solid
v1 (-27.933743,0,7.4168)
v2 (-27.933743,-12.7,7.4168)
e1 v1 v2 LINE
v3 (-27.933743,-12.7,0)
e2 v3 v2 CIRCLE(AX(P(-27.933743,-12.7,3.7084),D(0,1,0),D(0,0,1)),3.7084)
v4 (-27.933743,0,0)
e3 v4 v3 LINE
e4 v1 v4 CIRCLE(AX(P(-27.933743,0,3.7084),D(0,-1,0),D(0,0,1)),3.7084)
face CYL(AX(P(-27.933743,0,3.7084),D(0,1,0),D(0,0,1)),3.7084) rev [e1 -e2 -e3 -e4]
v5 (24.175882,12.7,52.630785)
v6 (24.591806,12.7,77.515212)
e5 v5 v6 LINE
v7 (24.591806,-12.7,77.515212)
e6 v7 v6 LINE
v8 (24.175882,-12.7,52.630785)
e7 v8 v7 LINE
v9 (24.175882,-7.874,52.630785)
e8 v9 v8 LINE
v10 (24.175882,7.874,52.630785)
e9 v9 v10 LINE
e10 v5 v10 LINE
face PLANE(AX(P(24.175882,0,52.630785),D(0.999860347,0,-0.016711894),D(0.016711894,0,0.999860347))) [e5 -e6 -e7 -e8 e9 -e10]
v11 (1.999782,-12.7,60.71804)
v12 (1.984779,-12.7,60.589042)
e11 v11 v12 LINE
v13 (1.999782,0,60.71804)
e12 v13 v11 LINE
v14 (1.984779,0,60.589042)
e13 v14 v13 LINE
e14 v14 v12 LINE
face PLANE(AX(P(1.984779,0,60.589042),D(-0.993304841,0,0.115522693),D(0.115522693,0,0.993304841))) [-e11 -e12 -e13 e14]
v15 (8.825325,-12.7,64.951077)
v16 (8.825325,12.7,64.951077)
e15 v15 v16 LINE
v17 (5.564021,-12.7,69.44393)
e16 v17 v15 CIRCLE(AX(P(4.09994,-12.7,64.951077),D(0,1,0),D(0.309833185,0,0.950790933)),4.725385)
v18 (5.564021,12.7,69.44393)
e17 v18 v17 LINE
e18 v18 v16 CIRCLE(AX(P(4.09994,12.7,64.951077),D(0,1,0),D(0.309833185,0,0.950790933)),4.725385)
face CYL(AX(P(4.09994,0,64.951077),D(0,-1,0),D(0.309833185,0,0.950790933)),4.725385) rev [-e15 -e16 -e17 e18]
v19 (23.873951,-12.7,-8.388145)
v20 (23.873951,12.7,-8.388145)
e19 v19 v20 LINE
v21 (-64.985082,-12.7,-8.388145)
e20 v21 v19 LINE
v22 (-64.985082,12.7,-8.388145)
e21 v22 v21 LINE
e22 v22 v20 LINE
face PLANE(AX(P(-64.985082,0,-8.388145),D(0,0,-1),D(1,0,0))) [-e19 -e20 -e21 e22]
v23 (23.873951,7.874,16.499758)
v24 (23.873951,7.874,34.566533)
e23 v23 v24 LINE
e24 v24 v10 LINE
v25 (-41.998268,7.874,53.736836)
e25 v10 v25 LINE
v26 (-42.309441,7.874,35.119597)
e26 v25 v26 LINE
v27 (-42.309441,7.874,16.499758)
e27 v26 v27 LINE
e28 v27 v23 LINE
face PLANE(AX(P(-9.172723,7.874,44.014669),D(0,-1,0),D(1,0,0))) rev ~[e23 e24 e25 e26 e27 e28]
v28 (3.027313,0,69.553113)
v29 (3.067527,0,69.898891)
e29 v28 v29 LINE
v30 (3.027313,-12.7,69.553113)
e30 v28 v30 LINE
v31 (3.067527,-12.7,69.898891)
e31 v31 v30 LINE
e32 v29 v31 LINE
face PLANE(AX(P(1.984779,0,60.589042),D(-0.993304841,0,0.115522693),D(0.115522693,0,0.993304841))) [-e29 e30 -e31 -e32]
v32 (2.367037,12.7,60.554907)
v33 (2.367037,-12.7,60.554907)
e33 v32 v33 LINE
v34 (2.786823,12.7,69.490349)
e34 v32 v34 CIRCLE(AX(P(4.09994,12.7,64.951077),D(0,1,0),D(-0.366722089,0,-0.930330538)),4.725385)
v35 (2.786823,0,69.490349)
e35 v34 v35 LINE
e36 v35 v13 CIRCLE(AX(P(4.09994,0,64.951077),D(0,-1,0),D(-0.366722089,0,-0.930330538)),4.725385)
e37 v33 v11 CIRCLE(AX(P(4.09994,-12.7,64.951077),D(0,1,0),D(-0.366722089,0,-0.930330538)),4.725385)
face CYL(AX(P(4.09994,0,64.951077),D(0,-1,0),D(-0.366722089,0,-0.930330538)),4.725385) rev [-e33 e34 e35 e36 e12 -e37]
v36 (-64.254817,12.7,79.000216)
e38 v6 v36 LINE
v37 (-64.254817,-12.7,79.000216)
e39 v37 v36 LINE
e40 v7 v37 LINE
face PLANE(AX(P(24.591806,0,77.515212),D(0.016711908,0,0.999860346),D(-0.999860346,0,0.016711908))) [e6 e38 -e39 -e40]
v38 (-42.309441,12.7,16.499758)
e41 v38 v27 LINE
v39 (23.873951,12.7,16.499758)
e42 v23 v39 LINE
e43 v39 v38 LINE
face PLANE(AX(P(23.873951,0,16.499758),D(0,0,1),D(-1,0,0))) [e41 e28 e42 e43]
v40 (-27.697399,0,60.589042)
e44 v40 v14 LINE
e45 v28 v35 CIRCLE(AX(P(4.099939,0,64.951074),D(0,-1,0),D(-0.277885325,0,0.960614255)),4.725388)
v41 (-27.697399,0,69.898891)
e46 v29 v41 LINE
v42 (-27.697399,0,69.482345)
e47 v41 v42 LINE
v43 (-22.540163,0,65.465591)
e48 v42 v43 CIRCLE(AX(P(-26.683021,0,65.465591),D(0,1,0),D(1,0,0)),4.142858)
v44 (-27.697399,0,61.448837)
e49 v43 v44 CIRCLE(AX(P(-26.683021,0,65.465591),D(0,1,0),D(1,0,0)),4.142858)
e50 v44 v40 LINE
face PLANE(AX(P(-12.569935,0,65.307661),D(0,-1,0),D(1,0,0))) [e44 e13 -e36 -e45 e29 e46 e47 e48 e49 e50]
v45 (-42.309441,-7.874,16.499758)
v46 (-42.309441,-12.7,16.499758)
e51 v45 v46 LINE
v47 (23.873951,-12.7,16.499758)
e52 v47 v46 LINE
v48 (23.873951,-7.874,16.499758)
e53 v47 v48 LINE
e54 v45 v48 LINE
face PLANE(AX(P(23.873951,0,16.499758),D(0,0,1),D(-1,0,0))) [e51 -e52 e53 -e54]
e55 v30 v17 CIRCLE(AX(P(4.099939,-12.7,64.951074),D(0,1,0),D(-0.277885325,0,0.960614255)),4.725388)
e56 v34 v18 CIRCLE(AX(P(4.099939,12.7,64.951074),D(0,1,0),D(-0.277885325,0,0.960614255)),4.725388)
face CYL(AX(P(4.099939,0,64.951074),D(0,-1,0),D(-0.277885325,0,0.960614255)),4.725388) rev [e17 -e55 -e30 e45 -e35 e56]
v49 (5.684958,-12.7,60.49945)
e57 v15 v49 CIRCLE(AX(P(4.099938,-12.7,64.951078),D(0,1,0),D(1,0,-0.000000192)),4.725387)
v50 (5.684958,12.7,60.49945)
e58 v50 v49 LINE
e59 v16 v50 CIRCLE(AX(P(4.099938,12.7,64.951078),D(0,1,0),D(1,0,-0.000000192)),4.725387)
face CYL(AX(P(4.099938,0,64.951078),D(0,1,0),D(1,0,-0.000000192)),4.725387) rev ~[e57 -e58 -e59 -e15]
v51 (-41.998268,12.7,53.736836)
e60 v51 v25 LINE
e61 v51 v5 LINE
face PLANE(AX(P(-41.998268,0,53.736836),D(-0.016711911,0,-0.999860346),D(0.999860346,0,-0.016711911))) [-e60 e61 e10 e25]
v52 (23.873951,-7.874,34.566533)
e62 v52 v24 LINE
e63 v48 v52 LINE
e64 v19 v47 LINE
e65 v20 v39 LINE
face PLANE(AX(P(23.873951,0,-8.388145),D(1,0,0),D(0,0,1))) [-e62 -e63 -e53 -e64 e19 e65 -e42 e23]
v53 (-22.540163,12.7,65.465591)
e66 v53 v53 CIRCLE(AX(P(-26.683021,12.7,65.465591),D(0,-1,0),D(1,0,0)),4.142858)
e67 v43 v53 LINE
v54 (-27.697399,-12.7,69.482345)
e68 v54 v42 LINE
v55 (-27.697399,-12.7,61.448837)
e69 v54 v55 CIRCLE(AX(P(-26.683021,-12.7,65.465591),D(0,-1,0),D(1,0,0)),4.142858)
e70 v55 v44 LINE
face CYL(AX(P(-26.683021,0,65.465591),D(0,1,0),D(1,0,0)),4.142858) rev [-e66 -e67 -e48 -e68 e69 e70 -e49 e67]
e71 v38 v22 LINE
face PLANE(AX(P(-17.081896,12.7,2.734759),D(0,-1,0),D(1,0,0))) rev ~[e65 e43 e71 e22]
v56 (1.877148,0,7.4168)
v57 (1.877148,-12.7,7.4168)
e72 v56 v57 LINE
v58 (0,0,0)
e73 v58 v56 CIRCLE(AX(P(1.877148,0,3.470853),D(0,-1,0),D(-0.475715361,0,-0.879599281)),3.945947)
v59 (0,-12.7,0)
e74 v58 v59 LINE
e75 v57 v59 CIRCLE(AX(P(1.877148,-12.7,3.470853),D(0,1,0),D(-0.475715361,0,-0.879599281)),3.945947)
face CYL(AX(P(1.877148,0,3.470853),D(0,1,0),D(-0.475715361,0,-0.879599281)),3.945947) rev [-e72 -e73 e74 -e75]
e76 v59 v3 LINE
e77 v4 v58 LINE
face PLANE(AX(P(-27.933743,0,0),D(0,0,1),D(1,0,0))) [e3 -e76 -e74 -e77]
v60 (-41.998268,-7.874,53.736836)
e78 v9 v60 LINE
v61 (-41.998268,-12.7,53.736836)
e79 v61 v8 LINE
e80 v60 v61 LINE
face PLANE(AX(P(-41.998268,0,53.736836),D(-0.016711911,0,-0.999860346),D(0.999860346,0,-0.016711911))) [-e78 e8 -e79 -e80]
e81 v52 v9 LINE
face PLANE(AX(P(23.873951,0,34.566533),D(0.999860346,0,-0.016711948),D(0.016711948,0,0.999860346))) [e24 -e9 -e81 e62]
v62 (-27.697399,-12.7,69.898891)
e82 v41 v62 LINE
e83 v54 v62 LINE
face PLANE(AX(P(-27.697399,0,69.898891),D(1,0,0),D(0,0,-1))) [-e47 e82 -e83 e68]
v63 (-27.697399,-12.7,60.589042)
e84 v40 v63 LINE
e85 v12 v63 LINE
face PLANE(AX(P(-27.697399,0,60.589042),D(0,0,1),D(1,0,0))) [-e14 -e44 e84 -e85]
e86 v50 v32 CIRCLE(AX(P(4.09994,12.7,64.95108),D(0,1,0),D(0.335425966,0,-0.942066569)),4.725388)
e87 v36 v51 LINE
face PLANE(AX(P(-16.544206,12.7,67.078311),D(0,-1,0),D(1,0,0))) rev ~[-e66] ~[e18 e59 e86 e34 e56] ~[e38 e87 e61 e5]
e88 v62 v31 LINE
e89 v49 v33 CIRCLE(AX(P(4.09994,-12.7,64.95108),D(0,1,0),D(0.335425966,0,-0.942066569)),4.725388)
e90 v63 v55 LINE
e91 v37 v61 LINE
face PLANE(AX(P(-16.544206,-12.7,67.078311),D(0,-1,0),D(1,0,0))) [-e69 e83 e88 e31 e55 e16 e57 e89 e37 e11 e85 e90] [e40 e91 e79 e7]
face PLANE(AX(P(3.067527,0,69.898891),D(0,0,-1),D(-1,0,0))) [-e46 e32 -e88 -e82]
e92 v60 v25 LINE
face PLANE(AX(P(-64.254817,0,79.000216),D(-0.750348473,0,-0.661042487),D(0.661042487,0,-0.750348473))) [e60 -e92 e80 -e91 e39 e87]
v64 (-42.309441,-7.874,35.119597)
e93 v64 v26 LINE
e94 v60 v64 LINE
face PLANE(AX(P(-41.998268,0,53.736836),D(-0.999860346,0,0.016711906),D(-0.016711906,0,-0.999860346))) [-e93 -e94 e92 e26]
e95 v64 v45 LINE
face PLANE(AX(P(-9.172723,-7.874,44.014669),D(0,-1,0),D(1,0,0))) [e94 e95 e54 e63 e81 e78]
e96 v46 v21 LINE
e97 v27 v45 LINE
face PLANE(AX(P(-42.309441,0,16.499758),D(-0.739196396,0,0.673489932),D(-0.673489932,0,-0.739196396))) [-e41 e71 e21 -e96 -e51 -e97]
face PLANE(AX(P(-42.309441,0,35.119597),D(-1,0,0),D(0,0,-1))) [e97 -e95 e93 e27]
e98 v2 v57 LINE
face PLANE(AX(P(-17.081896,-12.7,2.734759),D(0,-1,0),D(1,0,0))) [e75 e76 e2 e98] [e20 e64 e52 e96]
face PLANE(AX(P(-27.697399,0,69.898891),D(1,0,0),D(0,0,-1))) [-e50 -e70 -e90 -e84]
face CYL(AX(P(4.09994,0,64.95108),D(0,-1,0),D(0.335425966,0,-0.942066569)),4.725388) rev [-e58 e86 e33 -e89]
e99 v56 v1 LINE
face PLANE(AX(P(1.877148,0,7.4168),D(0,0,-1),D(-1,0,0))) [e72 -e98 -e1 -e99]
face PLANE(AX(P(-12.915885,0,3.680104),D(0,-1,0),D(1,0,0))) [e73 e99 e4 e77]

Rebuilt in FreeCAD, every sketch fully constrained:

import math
import FreeCAD as App
import Part
import Sketcher
from FreeCAD import Vector
Q = App.Units.Quantity


def add_polygon(sketch, points):
    """Adds a closed chain of lines whose ends are joined by coincident constraints."""
    first, n = sketch.GeometryCount, len(points)
    for a, b in zip(points, points[1:] + points[:1]):
        sketch.addGeometry(Part.LineSegment(App.Vector(*a, 0), App.Vector(*b, 0)), False)
    for i in range(n):
        sketch.addConstraint(Sketcher.Constraint("Coincident", first + i, 2, first + (i + 1) % n, 1))

doc = App.newDocument("Part")
body = doc.addObject("PartDesign::Body", "Body")

# Sketch on XZ plane
sketch1 = doc.addObject("Sketcher::SketchObject", "Sketch")
body.addObject(sketch1)
sketch1.AttachmentSupport = (doc.XZ_Plane, [""])
sketch1.MapMode = "FlatFace"
add_polygon(sketch1, [(23.873951, 16.499758), (-42.309441, 16.499758), (-64.985082, -8.388145), (23.873951, -8.388145)])  # lines 0-3
sketch1.addConstraint(Sketcher.Constraint("Horizontal", 0))
sketch1.addConstraint(Sketcher.Constraint("Horizontal", 2))
sketch1.addConstraint(Sketcher.Constraint("Vertical", 3))
sketch1.addConstraint(Sketcher.Constraint("DistanceX", 0, 2, 0, 1, Q("66.183392 mm")))
sketch1.addConstraint(Sketcher.Constraint("DistanceX", 2, 1, 2, 2, Q("88.859033 mm")))
sketch1.addConstraint(Sketcher.Constraint("DistanceY", 3, 1, 3, 2, Q("24.887903 mm")))
sketch1.addConstraint(Sketcher.Constraint("DistanceX", 0, 2, -1, 1, Q("42.309441 mm")))
sketch1.addConstraint(Sketcher.Constraint("DistanceY", -1, 1, 0, 2, Q("16.499758 mm")))
pad1 = doc.addObject("PartDesign::Pad", "Pad")
body.addObject(pad1)
pad1.Profile = sketch1
pad1.Length = Q("1 in")
pad1.Midplane = True

# Sketch on XZ plane
sketch2 = doc.addObject("Sketcher::SketchObject", "Sketch001")
body.addObject(sketch2)
sketch2.AttachmentSupport = (doc.XZ_Plane, [""])
sketch2.MapMode = "FlatFace"
sketch2.addGeometry(Part.LineSegment(Vector(1.877148, 7.4168, 0), Vector(-27.933743, 7.4168, 0)), False)
sketch2.addGeometry(Part.ArcOfCircle(Part.Circle(Vector(-27.933743, 3.7084, 0), Vector(0, 0, 1), 3.7084), math.radians(90), math.radians(270)), False)
sketch2.addGeometry(Part.LineSegment(Vector(-27.933743, 0, 0), Vector(0, 0, 0)), False)
sketch2.addGeometry(Part.ArcOfCircle(Part.Circle(Vector(1.877148, 3.470853, 0), Vector(0, 0, 1), 3.945947), math.radians(-118.405937), math.radians(89.999997)), False)
sketch2.addConstraint(Sketcher.Constraint("Tangent", 0, 2, 1, 1))
sketch2.addConstraint(Sketcher.Constraint("Tangent", 1, 2, 2, 1))
sketch2.addConstraint(Sketcher.Constraint("Coincident", 2, 2, 3, 1))
sketch2.addConstraint(Sketcher.Constraint("Tangent", 3, 2, 0, 1))
sketch2.addConstraint(Sketcher.Constraint("Horizontal", 0))
sketch2.addConstraint(Sketcher.Constraint("Horizontal", 2))
sketch2.addConstraint(Sketcher.Constraint("Coincident", 2, 2, -1, 1))
sketch2.addConstraint(Sketcher.Constraint("Radius", 1, Q("0.146 in")))
sketch2.addConstraint(Sketcher.Constraint("Radius", 3, Q("3.945947 mm")))
sketch2.addConstraint(Sketcher.Constraint("DistanceX", 0, 2, 0, 1, Q("29.810891 mm")))
pocket1 = doc.addObject("PartDesign::Pocket", "Pocket")
body.addObject(pocket1)
pocket1.Profile = sketch2
pocket1.Length = Q("1.42 in")
pocket1.Reversed = True

# Sketch on XZ plane
sketch3 = doc.addObject("Sketcher::SketchObject", "Sketch002")
body.addObject(sketch3)
sketch3.AttachmentSupport = (doc.XZ_Plane, [""])
sketch3.MapMode = "FlatFace"
add_polygon(sketch3, [(-42.309441, 35.119597), (-42.309441, 16.499758), (23.873951, 16.499758), (23.873951, 34.566533)])  # lines 0-3
sketch3.addConstraint(Sketcher.Constraint("Vertical", 0))
sketch3.addConstraint(Sketcher.Constraint("Horizontal", 1))
sketch3.addConstraint(Sketcher.Constraint("Vertical", 2))
sketch3.addConstraint(Sketcher.Constraint("DistanceX", 1, 1, 1, 2, Q("66.183392 mm")))
sketch3.addConstraint(Sketcher.Constraint("DistanceY", 0, 2, 0, 1, Q("18.619839 mm")))
sketch3.addConstraint(Sketcher.Constraint("DistanceY", 2, 1, 2, 2, Q("18.066775 mm")))
sketch3.addConstraint(Sketcher.Constraint("DistanceX", 0, 2, -1, 1, Q("42.309441 mm")))
sketch3.addConstraint(Sketcher.Constraint("DistanceY", -1, 1, 0, 2, Q("16.499758 mm")))
pad2 = doc.addObject("PartDesign::Pad", "Pad001")
body.addObject(pad2)
pad2.Profile = sketch3
pad2.Length = Q("0.62 in")
pad2.Midplane = True

# Sketch on XZ plane
sketch4 = doc.addObject("Sketcher::SketchObject", "Sketch003")
body.addObject(sketch4)
sketch4.AttachmentSupport = (doc.XZ_Plane, [""])
sketch4.MapMode = "FlatFace"
add_polygon(sketch4, [(-41.998268, 53.736836), (-42.309441, 35.119597), (23.873951, 34.566533), (24.175882, 52.630785)])  # lines 0-3
sketch4.addConstraint(Sketcher.Constraint("Parallel", 0, 2))
sketch4.addConstraint(Sketcher.Constraint("Perpendicular", 2, 3))
sketch4.addConstraint(Sketcher.Constraint("Distance", 0, Q("18.619839 mm")))
sketch4.addConstraint(Sketcher.Constraint("DistanceX", 0, 2, -1, 1, Q("42.309441 mm")))
sketch4.addConstraint(Sketcher.Constraint("DistanceX", -1, 1, 1, 2, Q("23.873951 mm")))
sketch4.addConstraint(Sketcher.Constraint("DistanceX", 3, 2, -1, 1, Q("41.998268 mm")))
sketch4.addConstraint(Sketcher.Constraint("DistanceX", 1, 2, 2, 2, Q("0.301931 mm")))
sketch4.addConstraint(Sketcher.Constraint("DistanceY", -1, 1, 0, 2, Q("35.119597 mm")))
pad3 = doc.addObject("PartDesign::Pad", "Pad002")
body.addObject(pad3)
pad3.Profile = sketch4
pad3.Length = Q("0.62 in")
pad3.Midplane = True

# Sketch on XZ plane
sketch5 = doc.addObject("Sketcher::SketchObject", "Sketch004")
body.addObject(sketch5)
sketch5.AttachmentSupport = (doc.XZ_Plane, [""])
sketch5.MapMode = "FlatFace"
add_polygon(sketch5, [(-64.254817, 79.000216), (-41.998268, 53.736836), (24.175882, 52.630785), (24.591806, 77.515212)])  # lines 0-3
sketch5.addGeometry(Part.Circle(Vector(-26.683021, 65.465591, 0), Vector(0, 0, 1), 4.142858), False)  # 4
sketch5.addGeometry(Part.ArcOfCircle(Part.Circle(Vector(4.09994, 64.951077, 0), Vector(0, 0, 1), 4.725385), math.radians(0.000004), math.radians(71.950822)), False)  # 5
sketch5.addGeometry(Part.ArcOfCircle(Part.Circle(Vector(4.099938, 64.951078, 0), Vector(0, 0, 1), 4.725387), math.radians(-70.401529), math.radians(-0.000011)), False)  # 6
sketch5.addGeometry(Part.ArcOfCircle(Part.Circle(Vector(4.09994, 64.95108, 0), Vector(0, 0, 1), 4.725388), math.radians(-111.513592), math.radians(-70.401557)), False)  # 7
sketch5.addGeometry(Part.ArcOfCircle(Part.Circle(Vector(4.09994, 64.951077, 0), Vector(0, 0, 1), 4.725385), math.radians(106.134059), math.radians(248.486398)), False)  # 8
sketch5.addGeometry(Part.ArcOfCircle(Part.Circle(Vector(4.099939, 64.951074, 0), Vector(0, 0, 1), 4.725388), math.radians(71.950823), math.radians(106.134035)), False)  # 9
sketch5.addConstraint(Sketcher.Constraint("Tangent", 5, 1, 6, 2))
sketch5.addConstraint(Sketcher.Constraint("Tangent", 6, 1, 7, 2))
sketch5.addConstraint(Sketcher.Constraint("Tangent", 7, 1, 8, 2))
sketch5.addConstraint(Sketcher.Constraint("Tangent", 8, 1, 9, 2))
sketch5.addConstraint(Sketcher.Constraint("Tangent", 9, 1, 5, 2))
sketch5.addConstraint(Sketcher.Constraint("Coincident", 7, 3, 5, 3))
sketch5.addConstraint(Sketcher.Constraint("Perpendicular", 1, 2))
sketch5.addConstraint(Sketcher.Constraint("Perpendicular", 2, 3))
sketch5.addConstraint(Sketcher.Constraint("Horizontal", 8, 3, 5, 1))
sketch5.addConstraint(Sketcher.Constraint("Radius", 9, Q("4.725388 mm")))
sketch5.addConstraint(Sketcher.Constraint("Diameter", 4, Q("8.285716 mm")))
sketch5.addConstraint(Sketcher.Constraint("DistanceX", 7, 1, 9, 3, Q("1.732902 mm")))
sketch5.addConstraint(Sketcher.Constraint("DistanceX", 4, 3, -1, 1, Q("26.683021 mm")))
sketch5.addConstraint(Sketcher.Constraint("DistanceY", -1, 1, 4, 3, Q("65.465591 mm")))
sketch5.addConstraint(Sketcher.Constraint("DistanceX", -1, 1, 5, 3, Q("4.09994 mm")))
sketch5.addConstraint(Sketcher.Constraint("DistanceY", -1, 1, 7, 3, Q("64.95108 mm")))
sketch5.addConstraint(Sketcher.Constraint("DistanceX", 0, 2, -1, 1, Q("41.998268 mm")))
sketch5.addConstraint(Sketcher.Constraint("DistanceY", -1, 1, 6, 1, Q("60.49945 mm")))
sketch5.addConstraint(Sketcher.Constraint("DistanceY", -1, 1, 8, 1, Q("69.490349 mm")))
sketch5.addConstraint(Sketcher.Constraint("DistanceX", -1, 1, 9, 1, Q("5.564021 mm")))
sketch5.addConstraint(Sketcher.Constraint("DistanceY", 0, 2, 6, 3, Q("11.214242 mm")))
sketch5.addConstraint(Sketcher.Constraint("DistanceY", 1, 2, 9, 3, Q("12.320289 mm")))
sketch5.addConstraint(Sketcher.Constraint("DistanceX", 8, 3, 1, 2, Q("20.075942 mm")))
sketch5.addConstraint(Sketcher.Constraint("DistanceY", 9, 3, 2, 2, Q("12.564138 mm")))
sketch5.addConstraint(Sketcher.Constraint("DistanceX", 3, 2, 0, 2, Q("22.256549 mm")))
pad4 = doc.addObject("PartDesign::Pad", "Pad003")
body.addObject(pad4)
pad4.Profile = sketch5
pad4.Length = Q("1 in")
pad4.Midplane = True

# Sketch on XZ plane
sketch6 = doc.addObject("Sketcher::SketchObject", "Sketch005")
body.addObject(sketch6)
sketch6.AttachmentSupport = (doc.XZ_Plane, [""])
sketch6.MapMode = "FlatFace"
add_polygon(sketch6, [(-27.697399, 60.589042), (1.984779, 60.589042), (3.067527, 69.898891), (-27.697399, 69.898891)])  # lines 0-3
sketch6.addConstraint(Sketcher.Constraint("Horizontal", 0))
sketch6.addConstraint(Sketcher.Constraint("Horizontal", 2))
sketch6.addConstraint(Sketcher.Constraint("Vertical", 3))
sketch6.addConstraint(Sketcher.Constraint("Distance", 1, Q("0.369 in")))
sketch6.addConstraint(Sketcher.Constraint("DistanceX", 0, 1, 0, 2, Q("29.682178 mm")))
sketch6.addConstraint(Sketcher.Constraint("DistanceY", 3, 2, 3, 1, Q("9.309849 mm")))
sketch6.addConstraint(Sketcher.Constraint("DistanceX", 2, 2, -1, 1, Q("27.697399 mm")))
sketch6.addConstraint(Sketcher.Constraint("DistanceY", -1, 1, 1, 2, Q("69.898891 mm")))
pocket2 = doc.addObject("PartDesign::Pocket", "Pocket001")
body.addObject(pocket2)
pocket2.Profile = sketch6
pocket2.Length = Q("1.51 in")
pocket2.Reversed = True

doc.recompute()
